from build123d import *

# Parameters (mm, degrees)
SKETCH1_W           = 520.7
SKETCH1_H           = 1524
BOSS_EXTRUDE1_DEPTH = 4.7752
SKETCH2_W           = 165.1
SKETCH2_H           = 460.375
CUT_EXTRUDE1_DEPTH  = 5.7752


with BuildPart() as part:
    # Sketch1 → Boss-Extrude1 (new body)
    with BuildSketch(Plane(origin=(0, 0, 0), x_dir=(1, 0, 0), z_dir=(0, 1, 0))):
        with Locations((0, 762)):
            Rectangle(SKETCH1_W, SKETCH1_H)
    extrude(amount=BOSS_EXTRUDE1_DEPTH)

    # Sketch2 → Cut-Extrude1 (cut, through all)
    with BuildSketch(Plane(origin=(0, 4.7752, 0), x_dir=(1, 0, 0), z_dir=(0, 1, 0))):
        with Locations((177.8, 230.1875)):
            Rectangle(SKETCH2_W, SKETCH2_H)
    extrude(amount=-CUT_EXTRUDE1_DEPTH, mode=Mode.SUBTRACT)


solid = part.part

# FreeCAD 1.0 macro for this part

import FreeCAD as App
import Part
import Sketcher
from FreeCAD import Vector
Q = App.Units.Quantity

doc = App.newDocument("Part")
body = doc.addObject("PartDesign::Body", "Body")

# Sketch on XZ plane
sketch1 = doc.addObject("Sketcher::SketchObject", "Sketch")
body.addObject(sketch1)
sketch1.AttachmentSupport = (doc.XZ_Plane, [""])
sketch1.MapMode = "FlatFace"
sketch1.addGeometry([
    Part.LineSegment(Vector(-260, -1524, 0), Vector(-260, 0, 0)),
    Part.LineSegment(Vector(-260, 0, 0), Vector(260, 0, 0)),
    Part.LineSegment(Vector(260, 0, 0), Vector(260, -1524, 0)),
    Part.LineSegment(Vector(260, -1524, 0), Vector(-260, -1524, 0)),
], False)
sketch1.addConstraint([
    Sketcher.Constraint("Coincident", 0, 2, 1, 1),
    Sketcher.Constraint("Coincident", 1, 2, 2, 1),
    Sketcher.Constraint("Coincident", 2, 2, 3, 1),
    Sketcher.Constraint("Coincident", 3, 2, 0, 1),
    Sketcher.Constraint("Vertical", 0),
    Sketcher.Constraint("Horizontal", 1),
    Sketcher.Constraint("Vertical", 2),
    Sketcher.Constraint("Horizontal", 3),
    Sketcher.Constraint("Symmetric", 0, 2, 1, 2, -1, 1),
    Sketcher.Constraint("DistanceY", 0, 1, 0, 2, Q("60 in")),
    Sketcher.Constraint("DistanceX", 1, 1, 1, 2, Q("20.5 in")),
])
pad1 = doc.addObject("PartDesign::Pad", "Pad")
body.addObject(pad1)
pad1.Profile = sketch1
pad1.Length = Q("0.188 in")
pad1.Reversed = True

# Sketch on XZ plane
sketch2 = doc.addObject("Sketcher::SketchObject", "Sketch001")
body.addObject(sketch2)
sketch2.AttachmentSupport = (doc.XZ_Plane, [""])
sketch2.MapMode = "FlatFace"
sketch2.AttachmentOffset = App.Placement(Vector(0, 0, -0.188 * 25.4), App.Rotation())
sketch2.addGeometry([
    Part.LineSegment(Vector(95, -460, 0), Vector(95, 0, 0)),
    Part.LineSegment(Vector(95, 0, 0), Vector(260, 0, 0)),
    Part.LineSegment(Vector(260, 0, 0), Vector(260, -460, 0)),
    Part.LineSegment(Vector(260, -460, 0), Vector(95, -460, 0)),
], False)
sketch2.addConstraint([
    Sketcher.Constraint("Coincident", 0, 2, 1, 1),
    Sketcher.Constraint("Coincident", 1, 2, 2, 1),
    Sketcher.Constraint("Coincident", 2, 2, 3, 1),
    Sketcher.Constraint("Coincident", 3, 2, 0, 1),
    Sketcher.Constraint("Vertical", 0),
    Sketcher.Constraint("Horizontal", 1),
    Sketcher.Constraint("Vertical", 2),
    Sketcher.Constraint("Horizontal", 3),
    Sketcher.Constraint("PointOnObject", 0, 2, -1),
    Sketcher.Constraint("DistanceX", 1, 1, 1, 2, Q("6.5 in")),
    Sketcher.Constraint("DistanceY", 0, 1, 0, 2, Q("18.125 in")),
    Sketcher.Constraint("DistanceX", -1, 1, 0, 2, Q("3.75 in")),
])
pocket1 = doc.addObject("PartDesign::Pocket", "Pocket")
body.addObject(pocket1)
pocket1.Profile = sketch2
pocket1.Type = "ThroughAll"
pocket1.Reversed = True

doc.recompute()
